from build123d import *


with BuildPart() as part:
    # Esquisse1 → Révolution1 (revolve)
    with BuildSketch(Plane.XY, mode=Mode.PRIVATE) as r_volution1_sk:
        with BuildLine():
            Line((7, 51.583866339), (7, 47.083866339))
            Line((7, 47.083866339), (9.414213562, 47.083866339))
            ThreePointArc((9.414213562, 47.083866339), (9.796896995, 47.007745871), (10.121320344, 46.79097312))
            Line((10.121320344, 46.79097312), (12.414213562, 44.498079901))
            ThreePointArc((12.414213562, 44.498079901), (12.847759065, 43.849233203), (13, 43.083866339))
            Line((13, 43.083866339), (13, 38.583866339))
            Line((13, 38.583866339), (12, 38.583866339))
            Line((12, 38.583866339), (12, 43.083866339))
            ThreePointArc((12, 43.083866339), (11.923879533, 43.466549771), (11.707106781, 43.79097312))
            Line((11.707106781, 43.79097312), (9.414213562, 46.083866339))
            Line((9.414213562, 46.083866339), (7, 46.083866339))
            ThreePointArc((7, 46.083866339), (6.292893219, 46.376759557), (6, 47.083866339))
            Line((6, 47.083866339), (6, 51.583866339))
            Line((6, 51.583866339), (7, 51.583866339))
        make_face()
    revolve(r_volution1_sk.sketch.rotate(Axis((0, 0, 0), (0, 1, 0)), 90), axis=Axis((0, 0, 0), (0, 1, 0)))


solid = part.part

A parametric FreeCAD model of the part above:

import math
import FreeCAD as App
import Part
import Sketcher
from FreeCAD import Vector
Q = App.Units.Quantity

doc = App.newDocument("Part")
params = doc.addObject("Spreadsheet::Sheet", "Params")
for row, (alias, value) in enumerate([
    ("sketch1_radius", "1 mm"),
    ("sketch1_height", "4.5 mm"),
    ("revolution_angle", "360 deg"),
], start=1):
    params.set(f"A{row}", alias)
    params.set(f"B{row}", "=" + value)
    params.setAlias(f"B{row}", alias)

body = doc.addObject("PartDesign::Body", "Body")

# Sketch on XY plane
sketch1 = body.newObject("Sketcher::SketchObject", "Sketch")
sketch1.AttachmentSupport = (doc.getObject("XY_Plane"), [""])
sketch1.MapMode = "FlatFace"
sketch1.addGeometry([
    Part.LineSegment(Vector(7, 47.083866, 0), Vector(7, 51.583866, 0)),  # 0
    Part.LineSegment(Vector(7, 51.583866, 0), Vector(6, 51.583866, 0)),  # 1
    Part.LineSegment(Vector(6, 51.583866, 0), Vector(6, 47.083866, 0)),  # 2
    Part.ArcOfCircle(Part.Circle(Vector(7, 47.083866, 0), Vector(0, 0, 1), 1), math.radians(180), math.radians(270)),  # 3
    Part.LineSegment(Vector(7, 46.083866, 0), Vector(9.414214, 46.083866, 0)),  # 4
    Part.LineSegment(Vector(9.414214, 46.083866, 0), Vector(11.707107, 43.790973, 0)),  # 5
    Part.ArcOfCircle(Part.Circle(Vector(11, 43.083866, 0), Vector(0, 0, 1), 1), math.radians(0), math.radians(45)),  # 6
    Part.LineSegment(Vector(12, 43.083866, 0), Vector(12, 38.583866, 0)),  # 7
    Part.LineSegment(Vector(12, 38.583866, 0), Vector(13, 38.583866, 0)),  # 8
    Part.LineSegment(Vector(13, 38.583866, 0), Vector(13, 43.083866, 0)),  # 9
    Part.ArcOfCircle(Part.Circle(Vector(11, 43.083866, 0), Vector(0, 0, 1), 2), math.radians(0), math.radians(45)),  # 10
    Part.LineSegment(Vector(12.414214, 44.49808, 0), Vector(10.12132, 46.790973, 0)),  # 11
    Part.ArcOfCircle(Part.Circle(Vector(9.414214, 46.083866, 0), Vector(0, 0, 1), 1), math.radians(45), math.radians(90)),  # 12
    Part.LineSegment(Vector(9.414214, 47.083866, 0), Vector(7, 47.083866, 0)),  # 13
], False)
sketch1.addConstraint([
    Sketcher.Constraint("Coincident", 0, 2, 1, 1),
    Sketcher.Constraint("Coincident", 1, 2, 2, 1),
    Sketcher.Constraint("Tangent", 2, 2, 3, 1),
    Sketcher.Constraint("Tangent", 3, 2, 4, 1),
    Sketcher.Constraint("Coincident", 4, 2, 5, 1),
    Sketcher.Constraint("Tangent", 5, 2, 6, 2),
    Sketcher.Constraint("Tangent", 6, 1, 7, 1),
    Sketcher.Constraint("Coincident", 7, 2, 8, 1),
    Sketcher.Constraint("Coincident", 8, 2, 9, 1),
    Sketcher.Constraint("Tangent", 9, 2, 10, 1),
    Sketcher.Constraint("Tangent", 10, 2, 11, 1),
    Sketcher.Constraint("Tangent", 11, 2, 12, 1),
    Sketcher.Constraint("Tangent", 12, 2, 13, 1),
    Sketcher.Constraint("Coincident", 13, 2, 0, 1),
    Sketcher.Constraint("Vertical", 0),
    Sketcher.Constraint("Horizontal", 1),
    Sketcher.Constraint("Vertical", 2),
    Sketcher.Constraint("Horizontal", 4),
    Sketcher.Constraint("Vertical", 7),
    Sketcher.Constraint("Horizontal", 8),
    Sketcher.Constraint("Vertical", 9),
    Sketcher.Constraint("Horizontal", 13),
    Sketcher.Constraint("Coincident", 10, 3, 6, 3),
    Sketcher.Constraint("Coincident", 4, 2, 12, 3),
    Sketcher.Constraint("Coincident", 13, 2, 3, 3),
    Sketcher.Constraint("Equal", 3, 6),
    Sketcher.Constraint("Parallel", 5, 11),
    Sketcher.Constraint("Equal", 2, 7),
    Sketcher.Constraint("Radius", 3, 1.0),
    Sketcher.Constraint("Angle", 5, Q("-45 deg")),
    Sketcher.Constraint("DistanceY", 0, 1, 0, 2, 4.5),
    Sketcher.Constraint("DistanceX", -1, 1, 3, 3, 7.0),
    Sketcher.Constraint("DistanceX", -1, 1, 6, 3, 11.0),
    Sketcher.Constraint("DistanceY", 6, 3, 3, 3, 4.0),
    Sketcher.Constraint("DistanceY", -1, 1, 10, 2, 44.49808),
])
sketch1.setExpression("Constraints[28]", "Params.sketch1_radius")
sketch1.setExpression("Constraints[30]", "Params.sketch1_height")
revolution = body.newObject("PartDesign::Revolution", "Revolution")
revolution.Profile = sketch1
revolution.ReferenceAxis = (sketch1, ["V_Axis"])
revolution.setExpression("Angle", "Params.revolution_angle")

doc.recompute()
